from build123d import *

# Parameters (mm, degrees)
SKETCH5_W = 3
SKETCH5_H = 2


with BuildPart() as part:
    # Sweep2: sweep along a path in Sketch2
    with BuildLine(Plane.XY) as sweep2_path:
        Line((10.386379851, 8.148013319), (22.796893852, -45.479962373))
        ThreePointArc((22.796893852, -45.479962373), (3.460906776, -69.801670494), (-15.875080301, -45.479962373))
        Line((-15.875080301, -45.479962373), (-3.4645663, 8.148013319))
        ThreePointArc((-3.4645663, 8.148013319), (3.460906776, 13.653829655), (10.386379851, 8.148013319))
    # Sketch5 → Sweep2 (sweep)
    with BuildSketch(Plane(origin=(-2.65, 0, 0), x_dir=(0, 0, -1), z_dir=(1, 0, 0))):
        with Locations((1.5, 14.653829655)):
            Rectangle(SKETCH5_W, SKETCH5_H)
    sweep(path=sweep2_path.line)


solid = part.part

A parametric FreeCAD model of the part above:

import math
import FreeCAD as App
import Part
import Sketcher

V = App.Vector

doc = App.newDocument("Part")
body = doc.addObject("PartDesign::Body", "Body")

# Sketch on YZ plane
sketch1 = body.newObject("Sketcher::SketchObject", "Sketch")
sketch1.AttachmentSupport = (doc.getObject("YZ_Plane"), [""])
sketch1.MapMode = "FlatFace"
sketch1.AttachmentOffset = App.Placement(V(0, 0, -2.65), App.Rotation())
sketch1.addGeometry([
    Part.LineSegment(V(15.7, 0, 0), V(13.7, 0, 0)),
    Part.LineSegment(V(13.7, 0, 0), V(13.7, -3, 0)),
    Part.LineSegment(V(13.7, -3, 0), V(15.7, -3, 0)),
    Part.LineSegment(V(15.7, -3, 0), V(15.7, 0, 0)),
], False)
sketch1.addConstraint([
    Sketcher.Constraint("Coincident", 0, 2, 1, 1),
    Sketcher.Constraint("Coincident", 1, 2, 2, 1),
    Sketcher.Constraint("Coincident", 2, 2, 3, 1),
    Sketcher.Constraint("Coincident", 3, 2, 0, 1),
    Sketcher.Constraint("Horizontal", 0),
    Sketcher.Constraint("Vertical", 1),
    Sketcher.Constraint("Horizontal", 2),
    Sketcher.Constraint("Vertical", 3),
    Sketcher.Constraint("PointOnObject", 0, 2, -1),
    Sketcher.Constraint("DistanceX", 0, 2, 0, 1, 2.0),
    Sketcher.Constraint("DistanceY", 1, 2, 1, 1, 3.0),
    Sketcher.Constraint("DistanceX", -1, 1, 0, 2, 13.65383),
])

# Sketch on XY plane
sketch2 = body.newObject("Sketcher::SketchObject", "Sketch001")
sketch2.AttachmentSupport = (doc.getObject("XY_Plane"), [""])
sketch2.MapMode = "FlatFace"
sketch2.addGeometry([
    Part.LineSegment(V(10, 8, 0), V(23, -45, 0)),
    Part.ArcOfCircle(Part.Circle(V(3, -50, 0), V(0, 0, 1), 20), math.radians(167), math.radians(373)),
    Part.LineSegment(V(-16, -45, 0), V(-3, 8, 0)),
    Part.ArcOfCircle(Part.Circle(V(3, 7, 0), V(0, 0, 1), 7), math.radians(13), math.radians(167)),
], False)
sketch2.addConstraint([
    Sketcher.Constraint("Tangent", 0, 2, 1, 2),
    Sketcher.Constraint("Tangent", 1, 1, 2, 1),
    Sketcher.Constraint("Tangent", 2, 2, 3, 2),
    Sketcher.Constraint("Tangent", 3, 1, 0, 1),
    Sketcher.Constraint("Horizontal", 0, 2, 1, 1),
    Sketcher.Constraint("Radius", 1, 19.847),
    Sketcher.Constraint("Radius", 3, 7.1085),
    Sketcher.Constraint("DistanceY", 1, 3, 3, 3, 56.5),
    Sketcher.Constraint("DistanceY", 1, 3, -1, 1, 49.95467),
    Sketcher.Constraint("DistanceX", 1, 1, -1, 1, 15.87508),
])
doc.recompute()

additivepipe = body.newObject("PartDesign::AdditivePipe", "AdditivePipe")
additivepipe.Profile = sketch1
additivepipe.Spine = (sketch2, ["Edge1", "Edge2", "Edge3", "Edge4"])

doc.recompute()
